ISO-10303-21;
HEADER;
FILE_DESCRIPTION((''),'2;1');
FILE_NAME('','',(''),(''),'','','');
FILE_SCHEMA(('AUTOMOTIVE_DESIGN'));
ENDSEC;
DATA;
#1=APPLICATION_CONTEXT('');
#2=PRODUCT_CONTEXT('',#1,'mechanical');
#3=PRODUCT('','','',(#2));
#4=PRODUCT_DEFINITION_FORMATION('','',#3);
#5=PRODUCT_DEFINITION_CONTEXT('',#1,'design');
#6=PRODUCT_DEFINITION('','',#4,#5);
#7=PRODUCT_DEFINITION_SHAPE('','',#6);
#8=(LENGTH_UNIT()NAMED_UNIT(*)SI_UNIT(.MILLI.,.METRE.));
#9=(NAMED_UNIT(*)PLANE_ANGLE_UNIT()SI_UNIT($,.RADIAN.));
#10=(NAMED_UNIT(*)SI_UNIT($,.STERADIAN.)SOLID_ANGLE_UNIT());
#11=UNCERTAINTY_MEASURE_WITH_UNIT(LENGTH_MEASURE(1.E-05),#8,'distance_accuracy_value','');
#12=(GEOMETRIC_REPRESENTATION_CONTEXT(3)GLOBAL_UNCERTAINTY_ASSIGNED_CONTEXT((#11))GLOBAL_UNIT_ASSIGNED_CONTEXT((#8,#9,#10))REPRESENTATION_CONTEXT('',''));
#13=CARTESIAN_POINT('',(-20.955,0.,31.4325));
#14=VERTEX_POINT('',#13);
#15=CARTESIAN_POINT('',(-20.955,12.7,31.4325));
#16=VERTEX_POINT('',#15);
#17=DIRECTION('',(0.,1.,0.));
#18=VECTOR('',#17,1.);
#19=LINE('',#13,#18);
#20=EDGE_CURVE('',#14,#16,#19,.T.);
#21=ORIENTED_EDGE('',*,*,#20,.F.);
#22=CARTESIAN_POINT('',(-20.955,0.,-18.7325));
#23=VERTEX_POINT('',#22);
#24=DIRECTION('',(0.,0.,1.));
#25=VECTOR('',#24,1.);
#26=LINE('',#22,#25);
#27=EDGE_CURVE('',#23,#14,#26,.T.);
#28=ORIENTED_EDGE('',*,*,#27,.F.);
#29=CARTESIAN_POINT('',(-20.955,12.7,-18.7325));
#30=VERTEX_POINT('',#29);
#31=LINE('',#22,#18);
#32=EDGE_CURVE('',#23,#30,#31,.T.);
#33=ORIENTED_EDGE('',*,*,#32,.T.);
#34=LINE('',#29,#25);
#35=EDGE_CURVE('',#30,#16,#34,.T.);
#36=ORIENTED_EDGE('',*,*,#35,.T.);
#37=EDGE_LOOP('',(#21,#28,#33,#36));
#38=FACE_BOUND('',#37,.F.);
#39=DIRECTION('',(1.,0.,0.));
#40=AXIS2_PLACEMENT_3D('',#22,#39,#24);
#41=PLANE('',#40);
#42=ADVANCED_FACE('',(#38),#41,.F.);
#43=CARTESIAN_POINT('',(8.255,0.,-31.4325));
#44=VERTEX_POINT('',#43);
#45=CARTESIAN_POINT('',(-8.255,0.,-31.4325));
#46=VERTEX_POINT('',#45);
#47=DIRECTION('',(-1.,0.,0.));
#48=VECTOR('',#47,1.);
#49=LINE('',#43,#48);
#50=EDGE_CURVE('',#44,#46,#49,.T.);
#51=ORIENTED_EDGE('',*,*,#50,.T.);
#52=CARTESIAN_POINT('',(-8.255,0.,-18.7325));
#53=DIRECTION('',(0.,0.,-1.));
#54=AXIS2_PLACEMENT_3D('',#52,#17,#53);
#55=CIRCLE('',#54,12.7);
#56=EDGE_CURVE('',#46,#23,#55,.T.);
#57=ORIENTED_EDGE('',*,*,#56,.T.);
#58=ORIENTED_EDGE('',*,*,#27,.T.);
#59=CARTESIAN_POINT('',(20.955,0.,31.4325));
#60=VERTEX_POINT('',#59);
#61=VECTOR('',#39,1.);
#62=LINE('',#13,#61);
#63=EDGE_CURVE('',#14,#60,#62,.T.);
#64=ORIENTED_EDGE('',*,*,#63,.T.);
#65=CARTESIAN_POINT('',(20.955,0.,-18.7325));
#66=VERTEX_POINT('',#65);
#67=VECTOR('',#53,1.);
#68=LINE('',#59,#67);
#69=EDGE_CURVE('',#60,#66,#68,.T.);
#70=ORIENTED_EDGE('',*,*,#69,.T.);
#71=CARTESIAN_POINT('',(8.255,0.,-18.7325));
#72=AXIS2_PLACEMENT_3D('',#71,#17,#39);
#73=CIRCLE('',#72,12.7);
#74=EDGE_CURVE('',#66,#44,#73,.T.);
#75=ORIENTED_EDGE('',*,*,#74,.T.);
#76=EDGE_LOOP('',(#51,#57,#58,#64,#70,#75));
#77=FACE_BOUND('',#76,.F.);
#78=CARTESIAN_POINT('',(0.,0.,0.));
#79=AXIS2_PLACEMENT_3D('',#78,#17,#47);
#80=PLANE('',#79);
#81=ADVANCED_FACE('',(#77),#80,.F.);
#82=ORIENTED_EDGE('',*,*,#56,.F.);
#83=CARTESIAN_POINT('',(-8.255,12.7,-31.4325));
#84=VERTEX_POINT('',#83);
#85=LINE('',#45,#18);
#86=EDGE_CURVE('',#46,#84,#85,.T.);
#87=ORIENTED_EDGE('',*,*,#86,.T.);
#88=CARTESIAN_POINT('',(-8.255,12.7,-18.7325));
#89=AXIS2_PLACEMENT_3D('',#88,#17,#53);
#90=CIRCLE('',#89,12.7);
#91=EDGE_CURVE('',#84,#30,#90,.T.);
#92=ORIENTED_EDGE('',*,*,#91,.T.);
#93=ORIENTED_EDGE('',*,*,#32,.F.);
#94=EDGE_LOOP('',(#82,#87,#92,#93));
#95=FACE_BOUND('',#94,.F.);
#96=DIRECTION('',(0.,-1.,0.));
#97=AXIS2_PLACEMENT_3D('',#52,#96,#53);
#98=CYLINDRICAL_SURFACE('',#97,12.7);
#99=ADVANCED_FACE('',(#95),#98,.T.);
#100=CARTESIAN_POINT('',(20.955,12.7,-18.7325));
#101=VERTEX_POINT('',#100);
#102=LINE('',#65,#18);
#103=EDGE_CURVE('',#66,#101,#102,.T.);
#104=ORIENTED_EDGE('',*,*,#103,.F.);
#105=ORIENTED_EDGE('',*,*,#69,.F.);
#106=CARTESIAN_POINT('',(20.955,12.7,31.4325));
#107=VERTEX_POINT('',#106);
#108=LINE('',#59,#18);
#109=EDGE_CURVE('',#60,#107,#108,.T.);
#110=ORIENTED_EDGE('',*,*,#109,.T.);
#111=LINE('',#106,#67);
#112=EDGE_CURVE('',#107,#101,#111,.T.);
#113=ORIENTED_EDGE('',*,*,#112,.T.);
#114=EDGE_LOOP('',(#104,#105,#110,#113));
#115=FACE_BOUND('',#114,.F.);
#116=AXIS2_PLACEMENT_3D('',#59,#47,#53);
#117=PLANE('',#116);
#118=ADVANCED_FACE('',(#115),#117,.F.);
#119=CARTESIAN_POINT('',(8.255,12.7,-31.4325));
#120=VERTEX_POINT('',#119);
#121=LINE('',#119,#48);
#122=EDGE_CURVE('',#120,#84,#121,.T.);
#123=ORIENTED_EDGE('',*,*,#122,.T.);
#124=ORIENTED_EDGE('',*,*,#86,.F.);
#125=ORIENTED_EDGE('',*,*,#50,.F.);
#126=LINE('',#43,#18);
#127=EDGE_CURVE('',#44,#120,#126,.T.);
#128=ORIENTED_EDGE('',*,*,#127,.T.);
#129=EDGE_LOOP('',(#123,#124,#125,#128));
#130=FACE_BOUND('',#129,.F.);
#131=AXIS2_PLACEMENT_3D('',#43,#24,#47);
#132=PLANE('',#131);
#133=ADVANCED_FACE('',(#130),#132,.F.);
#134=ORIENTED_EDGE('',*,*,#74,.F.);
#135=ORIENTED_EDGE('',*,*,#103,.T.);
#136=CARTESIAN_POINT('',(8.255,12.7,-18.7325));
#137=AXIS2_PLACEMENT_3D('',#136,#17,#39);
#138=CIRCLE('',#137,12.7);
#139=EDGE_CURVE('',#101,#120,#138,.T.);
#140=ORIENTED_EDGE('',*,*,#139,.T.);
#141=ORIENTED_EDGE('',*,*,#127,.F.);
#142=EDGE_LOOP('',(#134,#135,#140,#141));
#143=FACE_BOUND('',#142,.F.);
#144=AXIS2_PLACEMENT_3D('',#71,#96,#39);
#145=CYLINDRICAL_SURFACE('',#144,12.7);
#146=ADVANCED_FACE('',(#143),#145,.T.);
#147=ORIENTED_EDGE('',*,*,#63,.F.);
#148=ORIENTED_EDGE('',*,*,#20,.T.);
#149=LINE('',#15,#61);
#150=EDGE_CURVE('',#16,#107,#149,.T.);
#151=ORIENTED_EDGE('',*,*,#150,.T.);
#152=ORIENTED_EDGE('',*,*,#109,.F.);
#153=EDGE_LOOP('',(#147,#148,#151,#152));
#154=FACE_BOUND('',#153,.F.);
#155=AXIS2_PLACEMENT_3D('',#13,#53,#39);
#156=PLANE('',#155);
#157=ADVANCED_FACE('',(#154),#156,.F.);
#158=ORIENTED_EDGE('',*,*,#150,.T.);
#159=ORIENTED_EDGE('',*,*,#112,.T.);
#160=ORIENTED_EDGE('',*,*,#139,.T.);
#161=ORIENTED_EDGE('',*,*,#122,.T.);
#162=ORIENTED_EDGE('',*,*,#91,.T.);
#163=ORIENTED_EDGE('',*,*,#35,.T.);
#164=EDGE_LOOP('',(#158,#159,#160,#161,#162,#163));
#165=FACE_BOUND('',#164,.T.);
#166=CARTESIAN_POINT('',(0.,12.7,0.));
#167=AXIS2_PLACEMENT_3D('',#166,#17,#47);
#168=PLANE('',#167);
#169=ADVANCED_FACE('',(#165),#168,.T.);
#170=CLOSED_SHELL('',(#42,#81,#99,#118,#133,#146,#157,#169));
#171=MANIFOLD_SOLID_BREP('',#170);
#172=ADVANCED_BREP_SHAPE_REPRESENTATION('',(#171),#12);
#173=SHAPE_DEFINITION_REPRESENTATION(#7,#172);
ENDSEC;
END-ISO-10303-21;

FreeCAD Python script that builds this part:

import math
import FreeCAD as App
import Part
import Sketcher

V = App.Vector
Q = App.Units.Quantity

doc = App.newDocument("Part")
body = doc.addObject("PartDesign::Body", "Body")

sketch1 = body.newObject("Sketcher::SketchObject", "Sketch")
sketch1.AttachmentSupport = (doc.getObject("XZ_Plane"), [""])
sketch1.MapMode = "FlatFace"
sketch1.addGeometry([
    Part.ArcOfCircle(Part.Circle(V(8, -19, 0), V(0, 0, 1), 13), math.radians(-90), math.radians(0)),
    Part.LineSegment(V(8, -31, 0), V(-8, -31, 0)),
    Part.ArcOfCircle(Part.Circle(V(-8, -19, 0), V(0, 0, 1), 13), math.radians(180), math.radians(270)),
    Part.LineSegment(V(-21, -19, 0), V(-21, 31, 0)),
    Part.LineSegment(V(-21, 31, 0), V(21, 31, 0)),
    Part.LineSegment(V(21, 31, 0), V(21, -19, 0)),
], False)
sketch1.addConstraint([
    Sketcher.Constraint("Tangent", 0, 1, 1, 1),
    Sketcher.Constraint("Tangent", 1, 2, 2, 2),
    Sketcher.Constraint("Tangent", 2, 1, 3, 1),
    Sketcher.Constraint("Coincident", 3, 2, 4, 1),
    Sketcher.Constraint("Coincident", 4, 2, 5, 1),
    Sketcher.Constraint("Tangent", 5, 2, 0, 2),
    Sketcher.Constraint("Horizontal", 1),
    Sketcher.Constraint("Vertical", 3),
    Sketcher.Constraint("Horizontal", 4),
    Sketcher.Constraint("Vertical", 5),
    Sketcher.Constraint("Equal", 0, 2),
    Sketcher.Constraint("Radius", 0, Q("0.5 in")),
    Sketcher.Constraint("DistanceX", 4, 1, 4, 2, Q("1.65 in")),
    Sketcher.Constraint("DistanceY", 1, 2, 3, 2, Q("2.475 in")),
    Sketcher.Constraint("DistanceX", -1, 1, 0, 3, Q("0.325 in")),
    Sketcher.Constraint("DistanceY", 0, 3, -1, 1, Q("0.7375 in")),
])
pad1 = body.newObject("PartDesign::Pad", "Pad")
pad1.Profile = sketch1
pad1.Length = Q("0.5 in")
pad1.Reversed = True

doc.recompute()
